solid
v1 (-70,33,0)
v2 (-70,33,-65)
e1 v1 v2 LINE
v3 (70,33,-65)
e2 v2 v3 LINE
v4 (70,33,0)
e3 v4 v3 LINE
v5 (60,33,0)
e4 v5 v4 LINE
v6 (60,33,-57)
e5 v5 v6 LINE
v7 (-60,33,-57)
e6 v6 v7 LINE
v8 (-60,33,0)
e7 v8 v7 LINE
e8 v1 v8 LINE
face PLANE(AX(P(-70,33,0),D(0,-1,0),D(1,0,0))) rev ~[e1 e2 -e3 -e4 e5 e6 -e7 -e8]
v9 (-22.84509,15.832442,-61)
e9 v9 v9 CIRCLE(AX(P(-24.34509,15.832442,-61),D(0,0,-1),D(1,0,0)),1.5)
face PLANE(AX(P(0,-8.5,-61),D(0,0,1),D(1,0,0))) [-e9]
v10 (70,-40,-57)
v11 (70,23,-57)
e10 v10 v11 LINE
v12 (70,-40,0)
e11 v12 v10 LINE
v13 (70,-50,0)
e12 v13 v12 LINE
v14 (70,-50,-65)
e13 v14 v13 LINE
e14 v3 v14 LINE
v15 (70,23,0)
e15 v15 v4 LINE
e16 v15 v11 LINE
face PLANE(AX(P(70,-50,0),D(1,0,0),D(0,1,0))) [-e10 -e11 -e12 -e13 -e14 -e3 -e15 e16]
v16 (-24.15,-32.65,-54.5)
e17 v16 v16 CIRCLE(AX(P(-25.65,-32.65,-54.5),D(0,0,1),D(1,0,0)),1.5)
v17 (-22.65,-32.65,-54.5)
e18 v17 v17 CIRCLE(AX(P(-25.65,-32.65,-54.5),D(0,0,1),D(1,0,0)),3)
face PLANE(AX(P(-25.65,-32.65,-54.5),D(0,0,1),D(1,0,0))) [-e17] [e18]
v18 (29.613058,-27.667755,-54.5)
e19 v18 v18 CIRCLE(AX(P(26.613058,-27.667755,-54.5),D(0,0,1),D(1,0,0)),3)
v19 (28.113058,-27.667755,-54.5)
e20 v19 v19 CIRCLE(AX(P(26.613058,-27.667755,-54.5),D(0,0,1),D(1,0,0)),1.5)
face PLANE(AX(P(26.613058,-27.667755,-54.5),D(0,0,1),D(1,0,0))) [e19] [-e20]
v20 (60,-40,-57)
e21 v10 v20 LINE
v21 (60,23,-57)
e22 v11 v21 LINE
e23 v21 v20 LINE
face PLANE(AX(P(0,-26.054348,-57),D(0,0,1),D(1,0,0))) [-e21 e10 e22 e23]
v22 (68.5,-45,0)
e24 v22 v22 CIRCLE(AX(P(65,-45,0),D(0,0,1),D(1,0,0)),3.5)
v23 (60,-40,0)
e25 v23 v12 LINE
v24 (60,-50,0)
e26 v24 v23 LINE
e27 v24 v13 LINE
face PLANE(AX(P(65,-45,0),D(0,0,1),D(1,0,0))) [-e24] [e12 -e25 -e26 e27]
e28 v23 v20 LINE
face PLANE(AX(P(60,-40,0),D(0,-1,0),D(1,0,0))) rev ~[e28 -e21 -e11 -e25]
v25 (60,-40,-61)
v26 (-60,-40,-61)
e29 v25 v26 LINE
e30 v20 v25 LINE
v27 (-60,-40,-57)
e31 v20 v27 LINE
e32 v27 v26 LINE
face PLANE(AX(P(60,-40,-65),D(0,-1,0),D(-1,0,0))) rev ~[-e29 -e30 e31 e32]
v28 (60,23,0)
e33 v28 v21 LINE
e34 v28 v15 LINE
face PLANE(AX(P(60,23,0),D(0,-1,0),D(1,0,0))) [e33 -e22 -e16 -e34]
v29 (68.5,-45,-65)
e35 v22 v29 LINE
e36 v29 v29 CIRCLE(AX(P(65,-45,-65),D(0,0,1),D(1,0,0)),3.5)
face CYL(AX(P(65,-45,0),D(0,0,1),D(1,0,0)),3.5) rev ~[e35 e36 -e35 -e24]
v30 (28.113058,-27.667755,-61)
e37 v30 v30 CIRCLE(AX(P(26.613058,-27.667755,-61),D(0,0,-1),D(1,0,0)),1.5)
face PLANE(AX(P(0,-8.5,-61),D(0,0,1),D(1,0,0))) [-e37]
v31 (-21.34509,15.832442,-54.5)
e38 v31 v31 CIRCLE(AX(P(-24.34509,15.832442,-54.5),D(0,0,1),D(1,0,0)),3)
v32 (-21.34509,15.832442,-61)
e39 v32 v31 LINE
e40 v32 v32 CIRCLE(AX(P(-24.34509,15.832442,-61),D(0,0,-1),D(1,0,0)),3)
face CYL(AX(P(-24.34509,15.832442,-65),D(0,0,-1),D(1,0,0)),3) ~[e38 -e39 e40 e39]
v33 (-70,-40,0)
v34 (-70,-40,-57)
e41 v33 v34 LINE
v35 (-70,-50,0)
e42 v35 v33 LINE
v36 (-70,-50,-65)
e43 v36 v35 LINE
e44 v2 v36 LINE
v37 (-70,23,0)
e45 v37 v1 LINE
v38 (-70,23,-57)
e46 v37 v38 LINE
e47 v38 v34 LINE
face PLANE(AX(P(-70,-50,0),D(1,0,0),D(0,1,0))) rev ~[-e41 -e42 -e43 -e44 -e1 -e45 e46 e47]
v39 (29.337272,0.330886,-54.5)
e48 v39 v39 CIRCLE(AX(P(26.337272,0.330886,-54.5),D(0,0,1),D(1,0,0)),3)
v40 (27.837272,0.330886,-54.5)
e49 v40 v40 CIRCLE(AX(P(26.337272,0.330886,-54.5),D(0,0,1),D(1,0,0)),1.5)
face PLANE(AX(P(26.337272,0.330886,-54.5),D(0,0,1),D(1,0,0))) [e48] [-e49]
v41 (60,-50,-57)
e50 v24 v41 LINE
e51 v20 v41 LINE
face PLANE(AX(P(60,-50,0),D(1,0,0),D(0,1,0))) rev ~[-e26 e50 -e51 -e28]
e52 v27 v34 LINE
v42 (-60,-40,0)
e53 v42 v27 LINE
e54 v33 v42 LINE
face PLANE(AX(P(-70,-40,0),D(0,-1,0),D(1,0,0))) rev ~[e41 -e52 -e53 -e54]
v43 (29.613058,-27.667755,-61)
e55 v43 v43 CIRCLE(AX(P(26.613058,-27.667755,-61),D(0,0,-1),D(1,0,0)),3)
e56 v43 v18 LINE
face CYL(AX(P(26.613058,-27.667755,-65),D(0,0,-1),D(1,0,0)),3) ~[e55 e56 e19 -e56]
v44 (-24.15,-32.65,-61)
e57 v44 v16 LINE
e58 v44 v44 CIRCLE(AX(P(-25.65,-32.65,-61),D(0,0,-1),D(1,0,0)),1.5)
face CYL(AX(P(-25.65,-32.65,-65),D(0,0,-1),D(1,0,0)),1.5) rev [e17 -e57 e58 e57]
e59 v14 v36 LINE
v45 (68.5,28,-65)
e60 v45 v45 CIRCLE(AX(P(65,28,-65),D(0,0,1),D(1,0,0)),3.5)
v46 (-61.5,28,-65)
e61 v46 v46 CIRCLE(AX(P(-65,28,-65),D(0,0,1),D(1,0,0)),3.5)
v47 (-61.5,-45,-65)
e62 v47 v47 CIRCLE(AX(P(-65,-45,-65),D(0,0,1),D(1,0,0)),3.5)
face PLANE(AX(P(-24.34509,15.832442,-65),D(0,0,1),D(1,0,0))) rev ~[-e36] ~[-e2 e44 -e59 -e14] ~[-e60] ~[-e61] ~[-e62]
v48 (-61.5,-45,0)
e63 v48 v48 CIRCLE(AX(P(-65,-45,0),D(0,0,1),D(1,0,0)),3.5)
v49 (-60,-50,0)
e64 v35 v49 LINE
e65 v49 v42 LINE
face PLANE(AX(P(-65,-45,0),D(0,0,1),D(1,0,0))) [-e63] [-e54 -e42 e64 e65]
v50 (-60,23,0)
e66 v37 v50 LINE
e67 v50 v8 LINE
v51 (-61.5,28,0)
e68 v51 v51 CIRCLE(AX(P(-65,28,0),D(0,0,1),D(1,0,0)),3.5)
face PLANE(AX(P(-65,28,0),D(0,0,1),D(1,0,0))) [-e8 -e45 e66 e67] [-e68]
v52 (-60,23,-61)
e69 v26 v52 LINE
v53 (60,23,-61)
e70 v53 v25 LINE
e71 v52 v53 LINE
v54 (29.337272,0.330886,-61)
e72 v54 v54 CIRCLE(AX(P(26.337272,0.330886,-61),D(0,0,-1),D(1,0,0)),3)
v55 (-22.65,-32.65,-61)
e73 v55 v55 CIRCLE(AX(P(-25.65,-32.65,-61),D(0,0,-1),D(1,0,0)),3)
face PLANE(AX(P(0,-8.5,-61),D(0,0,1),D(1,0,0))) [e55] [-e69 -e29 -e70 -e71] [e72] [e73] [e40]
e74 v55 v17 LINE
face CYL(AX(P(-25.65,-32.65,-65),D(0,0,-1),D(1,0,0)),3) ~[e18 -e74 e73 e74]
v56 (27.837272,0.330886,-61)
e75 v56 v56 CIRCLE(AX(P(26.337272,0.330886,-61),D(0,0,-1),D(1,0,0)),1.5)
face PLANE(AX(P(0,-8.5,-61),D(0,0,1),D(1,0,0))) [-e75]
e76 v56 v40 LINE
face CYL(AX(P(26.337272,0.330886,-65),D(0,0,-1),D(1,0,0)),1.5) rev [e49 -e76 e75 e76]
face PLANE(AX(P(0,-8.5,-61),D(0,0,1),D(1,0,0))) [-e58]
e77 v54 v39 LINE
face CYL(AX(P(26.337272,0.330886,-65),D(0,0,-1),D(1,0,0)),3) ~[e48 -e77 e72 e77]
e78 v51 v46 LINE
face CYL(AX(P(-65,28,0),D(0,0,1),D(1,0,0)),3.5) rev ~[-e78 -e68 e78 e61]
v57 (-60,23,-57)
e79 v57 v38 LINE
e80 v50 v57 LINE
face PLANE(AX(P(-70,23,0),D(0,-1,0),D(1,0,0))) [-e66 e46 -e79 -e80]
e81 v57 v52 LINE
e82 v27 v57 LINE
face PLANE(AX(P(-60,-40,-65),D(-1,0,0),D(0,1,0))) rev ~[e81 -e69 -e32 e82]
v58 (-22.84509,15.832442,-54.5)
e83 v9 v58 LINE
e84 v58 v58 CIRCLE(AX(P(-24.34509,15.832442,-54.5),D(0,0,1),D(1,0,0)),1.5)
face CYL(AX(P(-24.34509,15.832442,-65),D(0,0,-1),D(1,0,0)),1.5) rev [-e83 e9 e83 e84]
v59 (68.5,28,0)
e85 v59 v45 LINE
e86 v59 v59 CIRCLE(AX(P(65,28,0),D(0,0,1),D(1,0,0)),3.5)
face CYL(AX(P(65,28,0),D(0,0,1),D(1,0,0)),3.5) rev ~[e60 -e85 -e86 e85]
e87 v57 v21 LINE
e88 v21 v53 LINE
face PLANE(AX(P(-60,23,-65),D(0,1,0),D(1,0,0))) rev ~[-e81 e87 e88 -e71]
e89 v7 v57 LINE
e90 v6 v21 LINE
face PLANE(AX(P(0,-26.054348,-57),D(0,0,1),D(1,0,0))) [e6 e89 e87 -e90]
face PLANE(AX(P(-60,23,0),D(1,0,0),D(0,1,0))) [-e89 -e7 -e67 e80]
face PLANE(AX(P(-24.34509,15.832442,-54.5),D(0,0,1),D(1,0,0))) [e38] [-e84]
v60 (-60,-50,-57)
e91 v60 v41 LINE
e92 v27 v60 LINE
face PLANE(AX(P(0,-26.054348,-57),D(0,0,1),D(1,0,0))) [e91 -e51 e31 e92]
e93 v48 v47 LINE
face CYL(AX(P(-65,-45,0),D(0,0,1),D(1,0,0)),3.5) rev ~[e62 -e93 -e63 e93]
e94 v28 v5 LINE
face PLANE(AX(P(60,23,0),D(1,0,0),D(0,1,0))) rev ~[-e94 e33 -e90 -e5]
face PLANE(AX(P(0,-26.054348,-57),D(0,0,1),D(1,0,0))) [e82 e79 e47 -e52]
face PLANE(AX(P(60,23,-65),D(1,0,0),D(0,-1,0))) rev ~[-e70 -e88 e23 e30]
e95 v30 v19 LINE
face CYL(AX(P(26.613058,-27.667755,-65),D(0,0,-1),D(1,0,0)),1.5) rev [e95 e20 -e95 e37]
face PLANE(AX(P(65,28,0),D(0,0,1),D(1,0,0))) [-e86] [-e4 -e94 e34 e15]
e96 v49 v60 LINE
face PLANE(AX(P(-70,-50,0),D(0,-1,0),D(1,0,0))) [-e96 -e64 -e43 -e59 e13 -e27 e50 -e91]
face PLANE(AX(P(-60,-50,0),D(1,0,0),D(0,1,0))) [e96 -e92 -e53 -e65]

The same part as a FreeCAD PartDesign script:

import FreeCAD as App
import Part
import Sketcher
from FreeCAD import Vector


def add_polygon(sketch, points):
    """Adds a closed chain of lines whose ends are joined by coincident constraints."""
    first, n = sketch.GeometryCount, len(points)
    for a, b in zip(points, points[1:] + points[:1]):
        sketch.addGeometry(Part.LineSegment(App.Vector(*a, 0), App.Vector(*b, 0)), False)
    for i in range(n):
        sketch.addConstraint(Sketcher.Constraint("Coincident", first + i, 2, first + (i + 1) % n, 1))

doc = App.newDocument("Part")
body = doc.addObject("PartDesign::Body", "Body")
body.AllowCompound = True

# Sketch on XY plane
sketch1 = doc.addObject("Sketcher::SketchObject", "Sketch")
body.addObject(sketch1)
sketch1.AttachmentSupport = (doc.XY_Plane, [""])
sketch1.MapMode = "FlatFace"
add_polygon(sketch1, [(-70, 33), (-70, 23), (-60, 23), (-60, 33)])  # lines 0-3
add_polygon(sketch1, [(60, 33), (60, 23), (70, 23), (70, 33)])  # lines 4-7
add_polygon(sketch1, [(-70, -40), (-70, -50), (-60, -50), (-60, -40)])  # lines 8-11
add_polygon(sketch1, [(60, -40), (60, -50), (70, -50), (70, -40)])  # lines 12-15
sketch1.addConstraint([
    Sketcher.Constraint("Vertical", 0),
    Sketcher.Constraint("Horizontal", 1),
    Sketcher.Constraint("Vertical", 2),
    Sketcher.Constraint("Horizontal", 3),
    Sketcher.Constraint("Vertical", 4),
    Sketcher.Constraint("Horizontal", 5),
    Sketcher.Constraint("Vertical", 6),
    Sketcher.Constraint("Horizontal", 7),
    Sketcher.Constraint("Vertical", 8),
    Sketcher.Constraint("Horizontal", 9),
    Sketcher.Constraint("Vertical", 10),
    Sketcher.Constraint("Horizontal", 11),
    Sketcher.Constraint("Vertical", 12),
    Sketcher.Constraint("Horizontal", 13),
    Sketcher.Constraint("Vertical", 14),
    Sketcher.Constraint("Horizontal", 15),
    Sketcher.Constraint("Symmetric", 1, 2, 4, 2, -2),
    Sketcher.Constraint("Symmetric", 3, 2, 6, 2, -2),
    Sketcher.Constraint("Symmetric", 9, 2, 12, 2, -2),
    Sketcher.Constraint("Symmetric", 11, 2, 14, 2, -2),
    Sketcher.Constraint("Vertical", 3, 2, 8, 2),
    Sketcher.Constraint("Vertical", 2, 2, 9, 2),
    Sketcher.Constraint("Equal", 15, 0),
    Sketcher.Constraint("Equal", 6, 8),
    Sketcher.Constraint("DistanceX", 1, 1, 1, 2, 10.0),
    Sketcher.Constraint("DistanceX", 0, 2, -1, 1, 70.0),
    Sketcher.Constraint("DistanceY", -1, 1, 0, 2, 23.0),
    Sketcher.Constraint("DistanceY", 8, 2, -1, 1, 50.0),
])
pad1 = doc.addObject("PartDesign::Pad", "Pad")
body.addObject(pad1)
pad1.Profile = sketch1
pad1.Length = 65
pad1.Reversed = True

# Sketch on XY plane
sketch2 = doc.addObject("Sketcher::SketchObject", "Sketch001")
body.addObject(sketch2)
sketch2.AttachmentSupport = (doc.XY_Plane, [""])
sketch2.MapMode = "FlatFace"
sketch2.AttachmentOffset = App.Placement(Vector(0, 0, -65), App.Rotation())
add_polygon(sketch2, [(-70, -50), (70, -50), (70, 33), (-70, 33)])  # lines 0-3
add_polygon(sketch2, [(60, 23), (60, -40), (-60, -40), (-60, 23)])  # lines 4-7
sketch2.addConstraint([
    Sketcher.Constraint("Horizontal", 0),
    Sketcher.Constraint("Vertical", 1),
    Sketcher.Constraint("Horizontal", 2),
    Sketcher.Constraint("Vertical", 3),
    Sketcher.Constraint("Vertical", 4),
    Sketcher.Constraint("Horizontal", 5),
    Sketcher.Constraint("Vertical", 6),
    Sketcher.Constraint("Horizontal", 7),
    Sketcher.Constraint("DistanceX", 0, 1, 0, 2, 140.0),
    Sketcher.Constraint("DistanceX", 5, 2, 5, 1, 120.0),
    Sketcher.Constraint("DistanceY", 1, 1, 1, 2, 83.0),
    Sketcher.Constraint("DistanceY", 4, 2, 4, 1, 63.0),
    Sketcher.Constraint("DistanceX", -1, 1, 0, 2, 70.0),
    Sketcher.Constraint("DistanceY", 0, 2, -1, 1, 50.0),
    Sketcher.Constraint("DistanceX", -1, 1, 4, 2, 60.0),
    Sketcher.Constraint("DistanceY", 4, 2, -1, 1, 40.0),
])
pad2 = doc.addObject("PartDesign::Pad", "Pad001")
body.addObject(pad2)
pad2.Profile = sketch2
pad2.Length = 8

# Sketch on XY plane
sketch3 = doc.addObject("Sketcher::SketchObject", "Sketch002")
body.addObject(sketch3)
sketch3.AttachmentSupport = (doc.XY_Plane, [""])
sketch3.MapMode = "FlatFace"
sketch3.AttachmentOffset = App.Placement(Vector(0, 0, -65), App.Rotation())
add_polygon(sketch3, [(-70, 33), (-70, -50), (70, -50), (70, 33)])  # lines 0-3
sketch3.addConstraint([
    Sketcher.Constraint("Vertical", 0),
    Sketcher.Constraint("Horizontal", 1),
    Sketcher.Constraint("Vertical", 2),
    Sketcher.Constraint("Horizontal", 3),
    Sketcher.Constraint("DistanceX", 1, 1, 1, 2, 140.0),
    Sketcher.Constraint("DistanceY", 0, 2, 0, 1, 83.0),
    Sketcher.Constraint("DistanceX", 0, 2, -1, 1, 70.0),
    Sketcher.Constraint("DistanceY", 0, 2, -1, 1, 50.0),
])
pad3 = doc.addObject("PartDesign::Pad", "Pad002")
body.addObject(pad3)
pad3.Profile = sketch3
pad3.Length = 4

# Sketch on XY plane
sketch4 = doc.addObject("Sketcher::SketchObject", "Sketch003")
body.addObject(sketch4)
sketch4.AttachmentSupport = (doc.XY_Plane, [""])
sketch4.MapMode = "FlatFace"
sketch4.AttachmentOffset = App.Placement(Vector(0, 0, -65), App.Rotation())
sketch4.addGeometry([
    Part.Circle(Vector(-24.3, 15.8, 0), Vector(0, 0, 1), 3),  # 0
    Part.Circle(Vector(-24.3, 15.8, 0), Vector(0, 0, 1), 1.5),  # 1
    Part.Circle(Vector(26.3, 0.3, 0), Vector(0, 0, 1), 3),  # 2
    Part.Circle(Vector(26.3, 0.3, 0), Vector(0, 0, 1), 1.5),  # 3
    Part.Circle(Vector(26.6, -27.7, 0), Vector(0, 0, 1), 3),  # 4
    Part.Circle(Vector(26.6, -27.7, 0), Vector(0, 0, 1), 1.5),  # 5
    Part.Circle(Vector(-25.6, -32.6, 0), Vector(0, 0, 1), 3),  # 6
    Part.Circle(Vector(-25.6, -32.6, 0), Vector(0, 0, 1), 1.5),  # 7
], False)
sketch4.addConstraint([
    Sketcher.Constraint("Coincident", 1, 3, 0, 3),
    Sketcher.Constraint("Coincident", 3, 3, 2, 3),
    Sketcher.Constraint("Coincident", 5, 3, 4, 3),
    Sketcher.Constraint("Coincident", 7, 3, 6, 3),
    Sketcher.Constraint("Equal", 0, 2),
    Sketcher.Constraint("Equal", 1, 3),
    Sketcher.Constraint("Equal", 2, 4),
    Sketcher.Constraint("Equal", 3, 5),
    Sketcher.Constraint("Equal", 4, 6),
    Sketcher.Constraint("Equal", 5, 7),
    Sketcher.Constraint("Diameter", 0, 6.0),
    Sketcher.Constraint("Diameter", 1, 3.0),
    Sketcher.Constraint("DistanceX", 6, 3, -1, 1, 25.65),
    Sketcher.Constraint("DistanceY", 6, 3, -1, 1, 32.65),
    Sketcher.Constraint("DistanceX", 0, 3, -1, 1, 24.34509),
    Sketcher.Constraint("DistanceX", -1, 1, 2, 3, 26.337272),
    Sketcher.Constraint("DistanceY", 4, 3, 2, 3, 27.998641),
    Sketcher.Constraint("DistanceY", -1, 1, 0, 3, 15.832442),
    Sketcher.Constraint("DistanceY", -1, 1, 2, 3, 0.330886),
    Sketcher.Constraint("DistanceX", -1, 1, 4, 3, 26.613058),
])
pad4 = doc.addObject("PartDesign::Pad", "Pad003")
body.addObject(pad4)
pad4.Profile = sketch4
pad4.Length = 10.5

# Sketch on XY plane
sketch5 = doc.addObject("Sketcher::SketchObject", "Sketch004")
body.addObject(sketch5)
sketch5.AttachmentSupport = (doc.XY_Plane, [""])
sketch5.MapMode = "FlatFace"
sketch5.addGeometry([
    Part.Circle(Vector(-65, 28, 0), Vector(0, 0, 1), 3.5),
    Part.Circle(Vector(-65, -45, 0), Vector(0, 0, 1), 3.5),
    Part.Circle(Vector(65, -45, 0), Vector(0, 0, 1), 3.5),
    Part.Circle(Vector(65, 28, 0), Vector(0, 0, 1), 3.5),
], False)
sketch5.addConstraint([
    Sketcher.Constraint("Equal", 0, 1),
    Sketcher.Constraint("Equal", 1, 2),
    Sketcher.Constraint("Equal", 2, 3),
    Sketcher.Constraint("Symmetric", 1, 3, 2, 3, -2),
    Sketcher.Constraint("Symmetric", 0, 3, 3, 3, -2),
    Sketcher.Constraint("Vertical", 0, 3, 1, 3),
    Sketcher.Constraint("Diameter", 0, 7.0),
    Sketcher.Constraint("DistanceX", 0, 3, -1, 1, 65.0),
    Sketcher.Constraint("DistanceY", -1, 1, 0, 3, 28.0),
    Sketcher.Constraint("DistanceY", 1, 3, -1, 1, 45.0),
])
pocket1 = doc.addObject("PartDesign::Pocket", "Pocket")
body.addObject(pocket1)
pocket1.Profile = sketch5
pocket1.Length = 70

doc.recompute()
